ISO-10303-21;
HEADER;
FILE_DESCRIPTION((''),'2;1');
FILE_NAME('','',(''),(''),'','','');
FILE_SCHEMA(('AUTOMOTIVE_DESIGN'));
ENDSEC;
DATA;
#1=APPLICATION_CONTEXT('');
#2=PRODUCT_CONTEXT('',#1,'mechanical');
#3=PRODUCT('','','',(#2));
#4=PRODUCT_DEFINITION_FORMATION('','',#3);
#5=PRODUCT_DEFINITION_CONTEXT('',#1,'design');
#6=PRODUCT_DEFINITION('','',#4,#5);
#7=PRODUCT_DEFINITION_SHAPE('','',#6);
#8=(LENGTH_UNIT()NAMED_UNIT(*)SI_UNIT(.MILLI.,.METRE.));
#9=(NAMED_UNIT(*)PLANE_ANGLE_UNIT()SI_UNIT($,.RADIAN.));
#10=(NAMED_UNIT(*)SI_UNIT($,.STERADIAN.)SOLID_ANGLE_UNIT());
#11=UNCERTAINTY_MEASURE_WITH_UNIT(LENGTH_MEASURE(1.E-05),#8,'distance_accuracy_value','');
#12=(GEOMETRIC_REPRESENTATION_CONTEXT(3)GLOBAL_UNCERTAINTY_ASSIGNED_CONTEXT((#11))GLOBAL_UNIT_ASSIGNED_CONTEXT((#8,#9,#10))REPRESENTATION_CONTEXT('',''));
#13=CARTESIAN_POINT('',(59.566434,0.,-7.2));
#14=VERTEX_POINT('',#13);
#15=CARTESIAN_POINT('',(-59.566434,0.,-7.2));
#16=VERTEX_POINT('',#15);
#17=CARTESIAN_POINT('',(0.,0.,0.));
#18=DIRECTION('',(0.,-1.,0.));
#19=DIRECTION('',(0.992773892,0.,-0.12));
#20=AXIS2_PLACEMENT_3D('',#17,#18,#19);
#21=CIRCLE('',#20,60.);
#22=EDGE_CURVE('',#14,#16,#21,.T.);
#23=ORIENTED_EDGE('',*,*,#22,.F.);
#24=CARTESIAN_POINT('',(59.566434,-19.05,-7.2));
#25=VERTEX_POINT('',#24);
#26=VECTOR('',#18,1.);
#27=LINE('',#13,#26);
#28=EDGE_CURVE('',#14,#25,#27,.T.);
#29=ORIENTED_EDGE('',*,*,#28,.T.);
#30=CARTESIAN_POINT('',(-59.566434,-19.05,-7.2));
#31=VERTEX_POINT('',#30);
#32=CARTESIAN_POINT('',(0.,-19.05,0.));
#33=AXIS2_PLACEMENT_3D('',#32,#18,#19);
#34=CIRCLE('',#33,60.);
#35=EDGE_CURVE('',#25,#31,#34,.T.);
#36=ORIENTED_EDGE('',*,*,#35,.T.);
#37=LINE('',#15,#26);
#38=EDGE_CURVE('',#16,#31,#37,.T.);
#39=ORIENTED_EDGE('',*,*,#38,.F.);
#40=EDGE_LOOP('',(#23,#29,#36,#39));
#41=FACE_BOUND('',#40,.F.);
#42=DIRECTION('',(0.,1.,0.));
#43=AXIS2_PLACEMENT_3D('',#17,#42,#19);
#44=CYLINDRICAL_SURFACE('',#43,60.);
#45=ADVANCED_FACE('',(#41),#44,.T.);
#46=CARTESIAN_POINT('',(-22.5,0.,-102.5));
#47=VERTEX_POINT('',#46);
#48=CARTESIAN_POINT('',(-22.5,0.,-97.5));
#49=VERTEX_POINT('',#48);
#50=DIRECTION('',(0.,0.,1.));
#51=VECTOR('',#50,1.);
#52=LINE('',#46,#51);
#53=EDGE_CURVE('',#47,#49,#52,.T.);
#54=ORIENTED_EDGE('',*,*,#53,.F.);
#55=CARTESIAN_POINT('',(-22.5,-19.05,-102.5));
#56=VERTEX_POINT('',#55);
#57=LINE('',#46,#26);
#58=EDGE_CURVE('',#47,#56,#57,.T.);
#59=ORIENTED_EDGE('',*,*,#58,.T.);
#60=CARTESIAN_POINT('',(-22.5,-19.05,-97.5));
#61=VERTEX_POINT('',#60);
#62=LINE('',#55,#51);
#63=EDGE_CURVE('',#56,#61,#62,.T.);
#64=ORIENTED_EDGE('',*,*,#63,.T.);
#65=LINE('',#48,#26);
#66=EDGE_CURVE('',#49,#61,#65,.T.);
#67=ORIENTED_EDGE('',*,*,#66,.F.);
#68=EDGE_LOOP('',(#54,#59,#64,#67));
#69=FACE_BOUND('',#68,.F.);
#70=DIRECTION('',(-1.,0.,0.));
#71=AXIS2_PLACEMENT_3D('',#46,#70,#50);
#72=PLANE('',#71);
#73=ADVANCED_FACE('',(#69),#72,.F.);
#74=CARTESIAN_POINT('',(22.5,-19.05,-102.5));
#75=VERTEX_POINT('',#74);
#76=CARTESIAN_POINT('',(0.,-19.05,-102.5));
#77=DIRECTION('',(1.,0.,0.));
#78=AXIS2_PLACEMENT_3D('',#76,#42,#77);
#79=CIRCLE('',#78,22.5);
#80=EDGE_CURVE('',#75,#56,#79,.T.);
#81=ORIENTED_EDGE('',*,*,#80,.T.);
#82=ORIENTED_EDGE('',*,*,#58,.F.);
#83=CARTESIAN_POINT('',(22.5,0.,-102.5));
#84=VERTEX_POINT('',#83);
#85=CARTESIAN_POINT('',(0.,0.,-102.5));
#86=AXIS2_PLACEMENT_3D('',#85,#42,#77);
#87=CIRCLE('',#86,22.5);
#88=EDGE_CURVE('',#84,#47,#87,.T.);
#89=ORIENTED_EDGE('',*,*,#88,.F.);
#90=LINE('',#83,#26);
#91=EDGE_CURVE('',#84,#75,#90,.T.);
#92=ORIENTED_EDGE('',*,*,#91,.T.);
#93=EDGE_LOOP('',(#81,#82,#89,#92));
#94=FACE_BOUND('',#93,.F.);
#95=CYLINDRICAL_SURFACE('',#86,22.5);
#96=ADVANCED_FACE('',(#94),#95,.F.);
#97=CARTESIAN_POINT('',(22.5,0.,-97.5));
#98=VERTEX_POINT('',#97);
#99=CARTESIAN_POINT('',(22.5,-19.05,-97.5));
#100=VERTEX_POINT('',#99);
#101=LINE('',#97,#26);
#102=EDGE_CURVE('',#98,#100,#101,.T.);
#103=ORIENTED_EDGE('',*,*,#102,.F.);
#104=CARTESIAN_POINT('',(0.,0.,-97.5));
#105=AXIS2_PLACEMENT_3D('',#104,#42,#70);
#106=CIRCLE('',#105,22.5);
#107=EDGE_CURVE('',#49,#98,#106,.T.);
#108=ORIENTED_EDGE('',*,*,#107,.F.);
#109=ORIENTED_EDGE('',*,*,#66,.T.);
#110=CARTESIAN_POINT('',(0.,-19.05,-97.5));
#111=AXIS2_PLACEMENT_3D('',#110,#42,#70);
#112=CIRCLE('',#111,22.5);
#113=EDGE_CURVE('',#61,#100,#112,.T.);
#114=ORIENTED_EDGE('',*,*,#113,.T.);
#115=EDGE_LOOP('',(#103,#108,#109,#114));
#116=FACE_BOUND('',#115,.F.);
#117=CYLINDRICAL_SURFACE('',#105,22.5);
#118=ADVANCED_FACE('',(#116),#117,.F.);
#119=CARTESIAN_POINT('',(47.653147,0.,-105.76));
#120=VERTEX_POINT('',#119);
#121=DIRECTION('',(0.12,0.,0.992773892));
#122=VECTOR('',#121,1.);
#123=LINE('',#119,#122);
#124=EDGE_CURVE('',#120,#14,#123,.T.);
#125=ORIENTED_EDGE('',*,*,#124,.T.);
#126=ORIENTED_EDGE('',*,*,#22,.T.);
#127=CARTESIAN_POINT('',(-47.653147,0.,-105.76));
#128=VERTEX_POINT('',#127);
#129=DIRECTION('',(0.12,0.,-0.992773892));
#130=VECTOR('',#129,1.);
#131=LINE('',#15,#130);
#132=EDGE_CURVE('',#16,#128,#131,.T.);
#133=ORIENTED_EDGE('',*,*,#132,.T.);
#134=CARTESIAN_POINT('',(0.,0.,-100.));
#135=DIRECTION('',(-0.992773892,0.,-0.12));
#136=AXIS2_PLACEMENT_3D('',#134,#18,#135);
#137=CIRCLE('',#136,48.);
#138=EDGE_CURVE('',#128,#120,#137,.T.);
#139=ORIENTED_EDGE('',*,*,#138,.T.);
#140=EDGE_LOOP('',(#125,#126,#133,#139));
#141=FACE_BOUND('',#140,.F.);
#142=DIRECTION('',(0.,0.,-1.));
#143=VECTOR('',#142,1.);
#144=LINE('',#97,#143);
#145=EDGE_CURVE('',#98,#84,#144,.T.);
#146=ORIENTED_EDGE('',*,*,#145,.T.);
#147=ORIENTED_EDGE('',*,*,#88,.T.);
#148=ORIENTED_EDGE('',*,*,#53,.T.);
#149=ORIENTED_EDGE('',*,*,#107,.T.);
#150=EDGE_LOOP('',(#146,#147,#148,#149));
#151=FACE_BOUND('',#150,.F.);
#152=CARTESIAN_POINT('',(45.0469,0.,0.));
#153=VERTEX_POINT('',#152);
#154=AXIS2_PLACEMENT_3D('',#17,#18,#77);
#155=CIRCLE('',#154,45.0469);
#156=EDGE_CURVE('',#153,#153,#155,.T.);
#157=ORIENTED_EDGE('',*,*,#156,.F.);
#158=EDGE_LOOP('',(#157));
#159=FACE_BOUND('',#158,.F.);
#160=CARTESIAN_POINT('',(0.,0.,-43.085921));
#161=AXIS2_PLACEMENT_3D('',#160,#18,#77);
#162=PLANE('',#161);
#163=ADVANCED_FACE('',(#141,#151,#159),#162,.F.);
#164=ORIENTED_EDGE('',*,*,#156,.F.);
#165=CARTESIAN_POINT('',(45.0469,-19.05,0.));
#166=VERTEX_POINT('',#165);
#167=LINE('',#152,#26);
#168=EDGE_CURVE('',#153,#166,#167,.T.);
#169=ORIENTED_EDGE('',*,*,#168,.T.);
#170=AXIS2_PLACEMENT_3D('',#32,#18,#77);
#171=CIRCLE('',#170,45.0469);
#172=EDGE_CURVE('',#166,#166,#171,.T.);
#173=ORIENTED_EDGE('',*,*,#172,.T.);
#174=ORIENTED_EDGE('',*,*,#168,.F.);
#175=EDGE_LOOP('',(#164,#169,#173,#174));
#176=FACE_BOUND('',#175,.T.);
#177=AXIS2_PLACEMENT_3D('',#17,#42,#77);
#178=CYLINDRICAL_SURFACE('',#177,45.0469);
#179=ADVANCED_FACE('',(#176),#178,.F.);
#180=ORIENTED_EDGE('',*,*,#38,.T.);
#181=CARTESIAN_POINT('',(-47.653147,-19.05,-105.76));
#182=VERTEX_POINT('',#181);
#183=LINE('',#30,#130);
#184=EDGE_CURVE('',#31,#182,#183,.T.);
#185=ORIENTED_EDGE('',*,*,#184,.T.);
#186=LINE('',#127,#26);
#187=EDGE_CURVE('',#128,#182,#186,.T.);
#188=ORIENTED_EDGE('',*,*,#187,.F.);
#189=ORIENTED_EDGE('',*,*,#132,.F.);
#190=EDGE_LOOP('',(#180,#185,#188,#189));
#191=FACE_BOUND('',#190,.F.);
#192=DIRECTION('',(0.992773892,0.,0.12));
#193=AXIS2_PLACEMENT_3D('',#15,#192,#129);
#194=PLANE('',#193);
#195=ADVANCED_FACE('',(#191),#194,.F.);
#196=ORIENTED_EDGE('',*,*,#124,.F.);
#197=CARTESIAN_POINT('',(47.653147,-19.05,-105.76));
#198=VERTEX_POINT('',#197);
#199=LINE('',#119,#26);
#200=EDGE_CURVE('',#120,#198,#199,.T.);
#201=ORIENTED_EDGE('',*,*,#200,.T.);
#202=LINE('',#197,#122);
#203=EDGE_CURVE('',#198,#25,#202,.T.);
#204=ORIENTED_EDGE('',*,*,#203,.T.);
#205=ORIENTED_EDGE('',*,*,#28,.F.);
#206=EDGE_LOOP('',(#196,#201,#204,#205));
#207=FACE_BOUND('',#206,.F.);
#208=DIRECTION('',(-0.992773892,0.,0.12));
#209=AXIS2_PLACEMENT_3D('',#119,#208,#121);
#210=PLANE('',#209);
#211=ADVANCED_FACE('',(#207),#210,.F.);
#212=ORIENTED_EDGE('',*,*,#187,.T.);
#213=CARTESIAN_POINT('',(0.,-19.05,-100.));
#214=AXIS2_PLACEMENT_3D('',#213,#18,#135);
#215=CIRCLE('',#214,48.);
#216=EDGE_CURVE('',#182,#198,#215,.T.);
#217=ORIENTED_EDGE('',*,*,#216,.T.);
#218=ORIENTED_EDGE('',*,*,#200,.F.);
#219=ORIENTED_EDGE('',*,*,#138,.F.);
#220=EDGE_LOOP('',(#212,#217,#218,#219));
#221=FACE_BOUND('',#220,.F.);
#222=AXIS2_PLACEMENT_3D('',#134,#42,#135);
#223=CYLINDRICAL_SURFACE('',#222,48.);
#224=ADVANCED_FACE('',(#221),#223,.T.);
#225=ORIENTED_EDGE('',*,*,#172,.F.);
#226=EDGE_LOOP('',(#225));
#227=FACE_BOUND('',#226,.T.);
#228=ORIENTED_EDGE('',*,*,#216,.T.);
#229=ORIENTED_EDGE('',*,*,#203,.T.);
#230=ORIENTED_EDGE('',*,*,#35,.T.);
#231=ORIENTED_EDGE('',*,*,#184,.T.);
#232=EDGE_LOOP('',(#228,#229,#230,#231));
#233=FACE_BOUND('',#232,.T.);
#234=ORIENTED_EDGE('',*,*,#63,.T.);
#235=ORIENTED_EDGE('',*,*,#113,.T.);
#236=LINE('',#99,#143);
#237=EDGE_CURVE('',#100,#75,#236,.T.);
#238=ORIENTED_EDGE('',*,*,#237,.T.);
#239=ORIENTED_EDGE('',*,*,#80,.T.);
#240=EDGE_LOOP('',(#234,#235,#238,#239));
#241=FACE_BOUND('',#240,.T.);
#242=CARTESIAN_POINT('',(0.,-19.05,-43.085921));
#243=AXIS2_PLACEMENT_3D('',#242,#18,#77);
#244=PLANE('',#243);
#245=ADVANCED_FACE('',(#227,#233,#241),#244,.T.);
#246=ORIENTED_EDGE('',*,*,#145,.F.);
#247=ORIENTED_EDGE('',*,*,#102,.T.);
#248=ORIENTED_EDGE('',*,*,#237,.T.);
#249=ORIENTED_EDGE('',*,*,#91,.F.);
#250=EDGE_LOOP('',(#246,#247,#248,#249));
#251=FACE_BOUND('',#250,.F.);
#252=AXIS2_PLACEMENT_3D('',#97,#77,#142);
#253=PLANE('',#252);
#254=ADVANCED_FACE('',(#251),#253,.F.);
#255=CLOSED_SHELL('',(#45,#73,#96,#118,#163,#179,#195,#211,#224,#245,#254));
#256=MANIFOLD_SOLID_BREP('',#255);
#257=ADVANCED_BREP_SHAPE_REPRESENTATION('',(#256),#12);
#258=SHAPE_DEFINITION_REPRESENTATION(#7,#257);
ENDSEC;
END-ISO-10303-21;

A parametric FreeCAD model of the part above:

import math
import FreeCAD as App
import Part
import Sketcher

V = App.Vector
Q = App.Units.Quantity

doc = App.newDocument("Part")
body = doc.addObject("PartDesign::Body", "Body")

sketch1 = body.newObject("Sketcher::SketchObject", "Sketch")
sketch1.AttachmentSupport = (doc.getObject("XZ_Plane"), [""])
sketch1.MapMode = "FlatFace"
sketch1.addGeometry([
    Part.LineSegment(V(47.653147, -105.76, 0), V(59.566434, -7.2, 0)),
    Part.ArcOfCircle(Part.Circle(V(0, 0, 0), V(0, 0, 1), 60), math.radians(-6.892103), math.radians(186.892103)),
    Part.LineSegment(V(-59.566434, -7.2, 0), V(-47.653147, -105.76, 0)),
    Part.ArcOfCircle(Part.Circle(V(0, -100, 0), V(0, 0, 1), 48), math.radians(-173.107897), math.radians(-6.892103)),
    Part.ArcOfCircle(Part.Circle(V(0, -102.5, 0), V(0, 0, 1), 22.5), math.radians(180), math.radians(360)),
    Part.LineSegment(V(-22.5, -102.5, 0), V(-22.5, -97.5, 0)),
    Part.ArcOfCircle(Part.Circle(V(0, -97.5, 0), V(0, 0, 1), 22.5), math.radians(0), math.radians(180)),
    Part.LineSegment(V(22.5, -97.5, 0), V(22.5, -102.5, 0)),
    Part.Circle(V(0, 0, 0), V(0, 0, 1), 45.0469),
], False)
sketch1.addConstraint([
    Sketcher.Constraint("Tangent", 0, 2, 1, 1),
    Sketcher.Constraint("Tangent", 1, 2, 2, 1),
    Sketcher.Constraint("Tangent", 2, 2, 3, 1),
    Sketcher.Constraint("Tangent", 3, 2, 0, 1),
    Sketcher.Constraint("Tangent", 4, 1, 5, 1),
    Sketcher.Constraint("Tangent", 5, 2, 6, 2),
    Sketcher.Constraint("Tangent", 6, 1, 7, 1),
    Sketcher.Constraint("Tangent", 7, 2, 4, 2),
    Sketcher.Constraint("Vertical", 5),
    Sketcher.Constraint("Vertical", 7),
    Sketcher.Constraint("Coincident", 1, 3, -1, 1),
    Sketcher.Constraint("Coincident", 8, 3, -1, 1),
    Sketcher.Constraint("PointOnObject", 3, 3, -2),
    Sketcher.Constraint("PointOnObject", 4, 3, -2),
    Sketcher.Constraint("Radius", 1, Q("60 mm")),
    Sketcher.Constraint("Radius", 3, Q("48 mm")),
    Sketcher.Constraint("Radius", 4, Q("22.5 mm")),
    Sketcher.Constraint("DistanceY", 5, 1, 5, 2, Q("5 mm")),
    Sketcher.Constraint("DistanceY", 3, 3, -1, 1, Q("100 mm")),
    Sketcher.Constraint("Diameter", 8, Q("90.0938 mm")),
    Sketcher.Constraint("DistanceY", 4, 3, -1, 1, Q("102.5 mm")),
])
pad1 = body.newObject("PartDesign::Pad", "Pad")
pad1.Profile = sketch1
pad1.Length = 19.05

doc.recompute()
